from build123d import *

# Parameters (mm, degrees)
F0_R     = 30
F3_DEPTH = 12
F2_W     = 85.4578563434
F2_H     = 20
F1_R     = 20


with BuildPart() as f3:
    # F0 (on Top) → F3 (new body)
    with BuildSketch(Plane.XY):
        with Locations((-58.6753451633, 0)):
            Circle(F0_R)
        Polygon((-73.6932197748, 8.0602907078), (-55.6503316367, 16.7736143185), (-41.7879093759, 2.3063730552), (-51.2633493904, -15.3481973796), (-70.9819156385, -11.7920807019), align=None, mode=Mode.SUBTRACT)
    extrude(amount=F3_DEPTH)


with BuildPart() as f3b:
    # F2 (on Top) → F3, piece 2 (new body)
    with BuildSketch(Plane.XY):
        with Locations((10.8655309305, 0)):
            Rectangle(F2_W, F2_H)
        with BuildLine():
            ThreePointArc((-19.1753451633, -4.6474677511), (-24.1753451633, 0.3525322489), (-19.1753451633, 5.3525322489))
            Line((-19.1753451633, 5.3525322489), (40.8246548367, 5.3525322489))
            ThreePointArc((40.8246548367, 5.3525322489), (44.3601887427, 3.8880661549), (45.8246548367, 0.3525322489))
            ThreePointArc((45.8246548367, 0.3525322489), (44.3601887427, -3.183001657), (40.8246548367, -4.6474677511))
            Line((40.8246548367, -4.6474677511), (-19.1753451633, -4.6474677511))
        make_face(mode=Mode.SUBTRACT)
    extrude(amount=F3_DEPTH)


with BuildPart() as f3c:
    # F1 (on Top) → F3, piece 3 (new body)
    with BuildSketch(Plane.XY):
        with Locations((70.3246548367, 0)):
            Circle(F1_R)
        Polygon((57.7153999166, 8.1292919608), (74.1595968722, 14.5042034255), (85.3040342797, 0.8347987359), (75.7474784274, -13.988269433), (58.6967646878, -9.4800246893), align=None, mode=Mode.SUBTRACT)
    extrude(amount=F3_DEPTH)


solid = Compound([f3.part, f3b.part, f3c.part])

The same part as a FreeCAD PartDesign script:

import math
import FreeCAD as App
import Part
import Sketcher
from FreeCAD import Vector


def add_polygon(sketch, points):
    """Adds a closed chain of lines whose ends are joined by coincident constraints."""
    first, n = sketch.GeometryCount, len(points)
    for a, b in zip(points, points[1:] + points[:1]):
        sketch.addGeometry(Part.LineSegment(App.Vector(*a, 0), App.Vector(*b, 0)), False)
    for i in range(n):
        sketch.addConstraint(Sketcher.Constraint("Coincident", first + i, 2, first + (i + 1) % n, 1))

doc = App.newDocument("Part")
params = doc.addObject("Spreadsheet::Sheet", "Params")
for row, (alias, value) in enumerate([
    ("sketch1_diameter", "60 mm"),
    ("pad1_length", "12 mm"),
    ("sketch2_radius", "5 mm"),
    ("sketch2_width", "60 mm"),
    ("sketch2_height", "20 mm"),
    ("pad2_length", "12 mm"),
    ("sketch3_diameter", "40 mm"),
    ("pad3_length", "12 mm"),
], start=1):
    params.set(f"A{row}", alias)
    params.set(f"B{row}", "=" + value)
    params.setAlias(f"B{row}", alias)

body = doc.addObject("PartDesign::Body", "Body")

# Sketch on XY plane
sketch1 = body.newObject("Sketcher::SketchObject", "Sketch")
sketch1.AttachmentSupport = (doc.getObject("XY_Plane"), [""])
sketch1.MapMode = "FlatFace"
sketch1.addGeometry(Part.Circle(Vector(-59, 0, 0), Vector(0, 0, 1), 30), False)  # 0
add_polygon(sketch1, [(-71, -12), (-74, 8), (-56, 17), (-42, 2), (-51, -15)])  # lines 1-5
sketch1.addConstraint(Sketcher.Constraint("PointOnObject", 0, 3, -1))
sketch1.addConstraint(Sketcher.Constraint("Equal", 1, 2))
sketch1.addConstraint(Sketcher.Constraint("Equal", 2, 3))
sketch1.addConstraint(Sketcher.Constraint("Equal", 3, 4))
sketch1.addConstraint(Sketcher.Constraint("Equal", 4, 5))
sketch1.addConstraint(Sketcher.Constraint("Diameter", 0, 60.0))
sketch1.addConstraint(Sketcher.Constraint("Distance", 1, 20.036662))
sketch1.addConstraint(Sketcher.Constraint("DistanceX", 1, 2, -1, 1, 73.69322))
sketch1.addConstraint(Sketcher.Constraint("DistanceY", -1, 1, 1, 2, 8.060291))
sketch1.addConstraint(Sketcher.Constraint("DistanceX", 2, 2, -1, 1, 55.650332))
sketch1.addConstraint(Sketcher.Constraint("DistanceX", 3, 2, -1, 1, 41.787909))
sketch1.addConstraint(Sketcher.Constraint("DistanceX", 4, 2, -1, 1, 51.263349))
sketch1.addConstraint(Sketcher.Constraint("DistanceX", 5, 2, 0, 3, 12.30657))
sketch1.setExpression("Constraints[10]", "Params.sketch1_diameter")
pad1 = body.newObject("PartDesign::Pad", "Pad")
pad1.Profile = sketch1
pad1.setExpression("Length", "Params.pad1_length")
body2 = doc.addObject("PartDesign::Body", "Body001")

# Sketch on XY plane
sketch2 = body2.newObject("Sketcher::SketchObject", "Sketch001")
sketch2.AttachmentSupport = (doc.getObject("XY_Plane001"), [""])
sketch2.MapMode = "FlatFace"
add_polygon(sketch2, [(-32, 10), (-32, -10), (54, -10), (54, 10)])  # lines 0-3
sketch2.addGeometry(Part.LineSegment(Vector(41, -5, 0), Vector(-19, -5, 0)), False)  # 4
sketch2.addGeometry(Part.ArcOfCircle(Part.Circle(Vector(-19, 0, 0), Vector(0, 0, 1), 5), math.radians(90), math.radians(270)), False)  # 5
sketch2.addGeometry(Part.LineSegment(Vector(-19, 5, 0), Vector(41, 5, 0)), False)  # 6
sketch2.addGeometry(Part.ArcOfCircle(Part.Circle(Vector(41, 0, 0), Vector(0, 0, 1), 5), math.radians(0), math.radians(90)), False)  # 7
sketch2.addGeometry(Part.ArcOfCircle(Part.Circle(Vector(41, 0, 0), Vector(0, 0, 1), 5), math.radians(-90), math.radians(0)), False)  # 8
sketch2.addConstraint(Sketcher.Constraint("Tangent", 4, 2, 5, 2))
sketch2.addConstraint(Sketcher.Constraint("Tangent", 5, 1, 6, 1))
sketch2.addConstraint(Sketcher.Constraint("Tangent", 6, 2, 7, 2))
sketch2.addConstraint(Sketcher.Constraint("Tangent", 7, 1, 8, 2))
sketch2.addConstraint(Sketcher.Constraint("Tangent", 8, 1, 4, 1))
sketch2.addConstraint(Sketcher.Constraint("Vertical", 0))
sketch2.addConstraint(Sketcher.Constraint("Horizontal", 1))
sketch2.addConstraint(Sketcher.Constraint("Vertical", 2))
sketch2.addConstraint(Sketcher.Constraint("Horizontal", 3))
sketch2.addConstraint(Sketcher.Constraint("Horizontal", 4))
sketch2.addConstraint(Sketcher.Constraint("Horizontal", 6))
sketch2.addConstraint(Sketcher.Constraint("Equal", 5, 7))
sketch2.addConstraint(Sketcher.Constraint("Horizontal", 8, 3, 7, 1))
sketch2.addConstraint(Sketcher.Constraint("Radius", 5, 5.0))
sketch2.addConstraint(Sketcher.Constraint("DistanceX", 4, 2, 4, 1, 60.0))
sketch2.addConstraint(Sketcher.Constraint("DistanceY", 0, 2, 0, 1, 20.0))
sketch2.addConstraint(Sketcher.Constraint("DistanceY", 0, 2, -1, 1, 10.0))
sketch2.addConstraint(Sketcher.Constraint("DistanceX", 1, 1, 1, 2, 85.457856))
sketch2.addConstraint(Sketcher.Constraint("DistanceX", -1, 1, 1, 2, 53.594459))
sketch2.addConstraint(Sketcher.Constraint("DistanceX", 5, 3, -1, 1, 19.175345))
sketch2.addConstraint(Sketcher.Constraint("DistanceY", -1, 1, 5, 3, 0.352532))
sketch2.setExpression("Constraints[17]", "Params.sketch2_radius")
sketch2.setExpression("Constraints[18]", "Params.sketch2_width")
sketch2.setExpression("Constraints[19]", "Params.sketch2_height")
pad2 = body2.newObject("PartDesign::Pad", "Pad001")
pad2.Profile = sketch2
pad2.setExpression("Length", "Params.pad2_length")
body3 = doc.addObject("PartDesign::Body", "Body002")

# Sketch on XY plane
sketch3 = body3.newObject("Sketcher::SketchObject", "Sketch002")
sketch3.AttachmentSupport = (doc.getObject("XY_Plane002"), [""])
sketch3.MapMode = "FlatFace"
sketch3.addGeometry(Part.Circle(Vector(70, 0, 0), Vector(0, 0, 1), 20), False)  # 0
add_polygon(sketch3, [(59, -9), (58, 8), (74, 15), (85, 1), (76, -14)])  # lines 1-5
sketch3.addConstraint(Sketcher.Constraint("PointOnObject", 0, 3, -1))
sketch3.addConstraint(Sketcher.Constraint("Equal", 1, 2))
sketch3.addConstraint(Sketcher.Constraint("Equal", 2, 3))
sketch3.addConstraint(Sketcher.Constraint("Equal", 3, 4))
sketch3.addConstraint(Sketcher.Constraint("Equal", 4, 5))
sketch3.addConstraint(Sketcher.Constraint("Diameter", 0, 40.0))
sketch3.addConstraint(Sketcher.Constraint("DistanceX", -1, 1, 1, 2, 57.7154))
sketch3.addConstraint(Sketcher.Constraint("DistanceY", -1, 1, 3, 2, 0.834799))
sketch3.addConstraint(Sketcher.Constraint("Distance", 1, 17.636641))
sketch3.addConstraint(Sketcher.Constraint("DistanceY", -1, 1, 1, 2, 8.129292))
sketch3.addConstraint(Sketcher.Constraint("DistanceX", -1, 1, 4, 2, 75.747478))
sketch3.addConstraint(Sketcher.Constraint("DistanceY", 4, 2, -1, 1, 13.988269))
sketch3.addConstraint(Sketcher.Constraint("DistanceX", 0, 3, 3, 2, 14.979379))
sketch3.setExpression("Constraints[10]", "Params.sketch3_diameter")
pad3 = body3.newObject("PartDesign::Pad", "Pad002")
pad3.Profile = sketch3
pad3.setExpression("Length", "Params.pad3_length")

doc.recompute()
